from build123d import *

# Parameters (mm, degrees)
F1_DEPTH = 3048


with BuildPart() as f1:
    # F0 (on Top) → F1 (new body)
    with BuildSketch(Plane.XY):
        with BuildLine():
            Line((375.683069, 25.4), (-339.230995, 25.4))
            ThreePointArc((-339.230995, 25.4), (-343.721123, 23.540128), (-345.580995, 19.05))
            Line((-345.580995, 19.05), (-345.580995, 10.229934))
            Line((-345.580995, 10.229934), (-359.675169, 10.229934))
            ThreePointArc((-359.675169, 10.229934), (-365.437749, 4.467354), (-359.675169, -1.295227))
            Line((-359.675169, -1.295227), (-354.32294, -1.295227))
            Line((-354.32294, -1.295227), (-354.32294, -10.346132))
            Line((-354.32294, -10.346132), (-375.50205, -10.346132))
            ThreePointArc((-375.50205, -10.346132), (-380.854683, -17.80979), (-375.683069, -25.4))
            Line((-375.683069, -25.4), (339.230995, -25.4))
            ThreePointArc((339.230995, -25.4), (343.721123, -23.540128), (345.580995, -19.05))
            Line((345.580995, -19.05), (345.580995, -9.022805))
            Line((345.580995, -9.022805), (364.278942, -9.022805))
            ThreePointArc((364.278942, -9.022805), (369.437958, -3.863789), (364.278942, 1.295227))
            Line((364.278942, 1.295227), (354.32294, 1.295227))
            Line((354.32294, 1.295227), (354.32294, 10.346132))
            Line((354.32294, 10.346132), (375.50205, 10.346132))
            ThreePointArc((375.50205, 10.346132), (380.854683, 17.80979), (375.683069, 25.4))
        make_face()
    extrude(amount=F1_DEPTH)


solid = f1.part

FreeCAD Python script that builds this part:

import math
import FreeCAD as App
import Part
import Sketcher
from FreeCAD import Vector
Q = App.Units.Quantity

doc = App.newDocument("Part")
body = doc.addObject("PartDesign::Body", "Body")

# Sketch on XY plane
sketch1 = doc.addObject("Sketcher::SketchObject", "Sketch")
body.addObject(sketch1)
sketch1.AttachmentSupport = (doc.XY_Plane, [""])
sketch1.MapMode = "FlatFace"
sketch1.addGeometry(Part.LineSegment(Vector(376, 25, 0), Vector(-339, 25, 0)), False)
sketch1.addGeometry(Part.ArcOfCircle(Part.Circle(Vector(-339, 19, 0), Vector(0, 0, 1), 6), math.radians(90), math.radians(180)), False)
sketch1.addGeometry(Part.LineSegment(Vector(-346, 19, 0), Vector(-346, 10, 0)), False)
sketch1.addGeometry(Part.LineSegment(Vector(-346, 10, 0), Vector(-360, 10, 0)), False)
sketch1.addGeometry(Part.ArcOfCircle(Part.Circle(Vector(-360, 4, 0), Vector(0, 0, 1), 6), math.radians(90), math.radians(270)), False)
sketch1.addGeometry(Part.LineSegment(Vector(-360, -1, 0), Vector(-354, -1, 0)), False)
sketch1.addGeometry(Part.LineSegment(Vector(-354, -1, 0), Vector(-354, -10, 0)), False)
sketch1.addGeometry(Part.LineSegment(Vector(-354, -10, 0), Vector(-376, -10, 0)), False)
sketch1.addGeometry(Part.ArcOfCircle(Part.Circle(Vector(-373, -18, 0), Vector(0, 0, 1), 8), math.radians(109), math.radians(249)), False)
sketch1.addGeometry(Part.LineSegment(Vector(-376, -25, 0), Vector(339, -25, 0)), False)
sketch1.addGeometry(Part.ArcOfCircle(Part.Circle(Vector(339, -19, 0), Vector(0, 0, 1), 6), math.radians(-90), math.radians(0)), False)
sketch1.addGeometry(Part.LineSegment(Vector(346, -19, 0), Vector(346, -9, 0)), False)
sketch1.addGeometry(Part.LineSegment(Vector(346, -9, 0), Vector(364, -9, 0)), False)
sketch1.addGeometry(Part.ArcOfCircle(Part.Circle(Vector(364, -4, 0), Vector(0, 0, 1), 5), math.radians(-90), math.radians(90)), False)
sketch1.addGeometry(Part.LineSegment(Vector(364, 1, 0), Vector(354, 1, 0)), False)
sketch1.addGeometry(Part.LineSegment(Vector(354, 1, 0), Vector(354, 10, 0)), False)
sketch1.addGeometry(Part.LineSegment(Vector(354, 10, 0), Vector(376, 10, 0)), False)
sketch1.addGeometry(Part.ArcOfCircle(Part.Circle(Vector(373, 18, 0), Vector(0, 0, 1), 8), math.radians(-71), math.radians(69)), False)
sketch1.addConstraint(Sketcher.Constraint("Tangent", 0, 2, 1, 1))
sketch1.addConstraint(Sketcher.Constraint("Tangent", 1, 2, 2, 1))
sketch1.addConstraint(Sketcher.Constraint("Coincident", 2, 2, 3, 1))
sketch1.addConstraint(Sketcher.Constraint("Tangent", 3, 2, 4, 1))
sketch1.addConstraint(Sketcher.Constraint("Tangent", 4, 2, 5, 1))
sketch1.addConstraint(Sketcher.Constraint("Coincident", 5, 2, 6, 1))
sketch1.addConstraint(Sketcher.Constraint("Coincident", 6, 2, 7, 1))
sketch1.addConstraint(Sketcher.Constraint("Coincident", 7, 2, 8, 1))
sketch1.addConstraint(Sketcher.Constraint("Coincident", 8, 2, 9, 1))
sketch1.addConstraint(Sketcher.Constraint("Tangent", 9, 2, 10, 1))
sketch1.addConstraint(Sketcher.Constraint("Tangent", 10, 2, 11, 1))
sketch1.addConstraint(Sketcher.Constraint("Coincident", 11, 2, 12, 1))
sketch1.addConstraint(Sketcher.Constraint("Tangent", 12, 2, 13, 1))
sketch1.addConstraint(Sketcher.Constraint("Tangent", 13, 2, 14, 1))
sketch1.addConstraint(Sketcher.Constraint("Coincident", 14, 2, 15, 1))
sketch1.addConstraint(Sketcher.Constraint("Coincident", 15, 2, 16, 1))
sketch1.addConstraint(Sketcher.Constraint("Coincident", 16, 2, 17, 1))
sketch1.addConstraint(Sketcher.Constraint("Coincident", 17, 2, 0, 1))
sketch1.addConstraint(Sketcher.Constraint("Horizontal", 0))
sketch1.addConstraint(Sketcher.Constraint("Vertical", 2))
sketch1.addConstraint(Sketcher.Constraint("Horizontal", 3))
sketch1.addConstraint(Sketcher.Constraint("Horizontal", 5))
sketch1.addConstraint(Sketcher.Constraint("Vertical", 6))
sketch1.addConstraint(Sketcher.Constraint("Horizontal", 7))
sketch1.addConstraint(Sketcher.Constraint("Horizontal", 9))
sketch1.addConstraint(Sketcher.Constraint("Vertical", 11))
sketch1.addConstraint(Sketcher.Constraint("Horizontal", 12))
sketch1.addConstraint(Sketcher.Constraint("Horizontal", 14))
sketch1.addConstraint(Sketcher.Constraint("Vertical", 15))
sketch1.addConstraint(Sketcher.Constraint("Horizontal", 16))
sketch1.addConstraint(Sketcher.Constraint("Equal", 1, 10))
sketch1.addConstraint(Sketcher.Constraint("Equal", 8, 17))
sketch1.addConstraint(Sketcher.Constraint("Symmetric", 1, 3, 10, 3, -1, 1))
sketch1.addConstraint(Sketcher.Constraint("Symmetric", 8, 3, 17, 3, -1, 1))
sketch1.addConstraint(Sketcher.Constraint("Symmetric", 5, 2, 14, 2, -1, 1))
sketch1.addConstraint(Sketcher.Constraint("Equal", 7, 16))
sketch1.addConstraint(Sketcher.Constraint("Radius", 1, Q("0.25 in")))
sketch1.addConstraint(Sketcher.Constraint("DistanceY", -1, 1, 0, 2, Q("1 in")))
sketch1.addConstraint(Sketcher.Constraint("Radius", 8, 8.014899))
sketch1.addConstraint(Sketcher.Constraint("Radius", 4, 5.762581))
sketch1.addConstraint(Sketcher.Constraint("DistanceX", 14, 2, 14, 1, 9.956002))
sketch1.addConstraint(Sketcher.Constraint("Radius", 13, 5.159016))
sketch1.addConstraint(Sketcher.Constraint("DistanceX", 5, 1, 5, 2, 5.352229))
sketch1.addConstraint(Sketcher.Constraint("DistanceX", 7, 2, 7, 1, 21.17911))
sketch1.addConstraint(Sketcher.Constraint("DistanceX", 8, 2, 4, 2, 16.0079))
sketch1.addConstraint(Sketcher.Constraint("DistanceX", 0, 2, 0, 1, 714.914064))
sketch1.addConstraint(Sketcher.Constraint("DistanceX", 3, 2, 3, 1, 14.094174))
sketch1.addConstraint(Sketcher.Constraint("DistanceY", 2, 2, 2, 1, 8.820066))
sketch1.addConstraint(Sketcher.Constraint("DistanceY", 6, 2, 6, 1, 9.050905))
pad1 = doc.addObject("PartDesign::Pad", "Pad")
body.addObject(pad1)
pad1.Profile = sketch1
pad1.Length = Q("120 in")

doc.recompute()
